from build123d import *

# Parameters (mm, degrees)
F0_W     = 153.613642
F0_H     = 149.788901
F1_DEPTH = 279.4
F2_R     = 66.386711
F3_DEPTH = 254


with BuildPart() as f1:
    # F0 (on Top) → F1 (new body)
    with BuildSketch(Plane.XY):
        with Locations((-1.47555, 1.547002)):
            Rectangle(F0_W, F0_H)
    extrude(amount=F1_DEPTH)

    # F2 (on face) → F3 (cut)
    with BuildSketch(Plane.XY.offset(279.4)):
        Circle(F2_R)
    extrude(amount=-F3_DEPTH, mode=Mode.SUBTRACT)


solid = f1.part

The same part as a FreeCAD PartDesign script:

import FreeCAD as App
import Part
import Sketcher
Q = App.Units.Quantity

doc = App.newDocument("Part")
params = doc.addObject("Spreadsheet::Sheet", "Params")
for row, (alias, value) in enumerate([
    ("pad1_length", "11 in"),
    ("pocket1_length", "10 in"),
], start=1):
    params.set(f"A{row}", alias)
    params.set(f"B{row}", "=" + value)
    params.setAlias(f"B{row}", alias)

body = doc.addObject("PartDesign::Body", "Body")

# Sketch on XY plane
sketch1 = body.newObject("Sketcher::SketchObject", "Sketch")
sketch1.AttachmentSupport = (doc.getObject("XY_Plane"), [""])
sketch1.MapMode = "FlatFace"
sketch1.addGeometry([
    Part.LineSegment(App.Vector(-78, 76, 0), App.Vector(-78, -73, 0)),
    Part.LineSegment(App.Vector(-78, -73, 0), App.Vector(75, -73, 0)),
    Part.LineSegment(App.Vector(75, -73, 0), App.Vector(75, 76, 0)),
    Part.LineSegment(App.Vector(75, 76, 0), App.Vector(-78, 76, 0)),
], False)
sketch1.addConstraint([
    Sketcher.Constraint("Coincident", 0, 2, 1, 1),
    Sketcher.Constraint("Coincident", 1, 2, 2, 1),
    Sketcher.Constraint("Coincident", 2, 2, 3, 1),
    Sketcher.Constraint("Coincident", 3, 2, 0, 1),
    Sketcher.Constraint("Vertical", 0),
    Sketcher.Constraint("Horizontal", 1),
    Sketcher.Constraint("Vertical", 2),
    Sketcher.Constraint("Horizontal", 3),
    Sketcher.Constraint("DistanceY", 0, 2, 0, 1, 149.788901),
    Sketcher.Constraint("DistanceX", 1, 1, 1, 2, 153.613642),
    Sketcher.Constraint("DistanceX", 0, 2, -1, 1, 78.282371),
    Sketcher.Constraint("DistanceY", 0, 2, -1, 1, 73.347448),
])
pad1 = body.newObject("PartDesign::Pad", "Pad")
pad1.Profile = sketch1
pad1.setExpression("Length", "Params.pad1_length")

# Sketch on XY plane
sketch2 = body.newObject("Sketcher::SketchObject", "Sketch001")
sketch2.AttachmentSupport = (doc.getObject("XY_Plane"), [""])
sketch2.MapMode = "FlatFace"
sketch2.AttachmentOffset = App.Placement(App.Vector(0, 0, 11 * 25.4), App.Rotation())
sketch2.addGeometry(Part.Circle(App.Vector(0, 0, 0), App.Vector(0, 0, 1), 66), False)
sketch2.addConstraint([
    Sketcher.Constraint("Coincident", 0, 3, -1, 1),
    Sketcher.Constraint("Diameter", 0, Q("5.2273001 in")),
])
pocket1 = body.newObject("PartDesign::Pocket", "Pocket")
pocket1.Profile = sketch2
pocket1.setExpression("Length", "Params.pocket1_length")

doc.recompute()
